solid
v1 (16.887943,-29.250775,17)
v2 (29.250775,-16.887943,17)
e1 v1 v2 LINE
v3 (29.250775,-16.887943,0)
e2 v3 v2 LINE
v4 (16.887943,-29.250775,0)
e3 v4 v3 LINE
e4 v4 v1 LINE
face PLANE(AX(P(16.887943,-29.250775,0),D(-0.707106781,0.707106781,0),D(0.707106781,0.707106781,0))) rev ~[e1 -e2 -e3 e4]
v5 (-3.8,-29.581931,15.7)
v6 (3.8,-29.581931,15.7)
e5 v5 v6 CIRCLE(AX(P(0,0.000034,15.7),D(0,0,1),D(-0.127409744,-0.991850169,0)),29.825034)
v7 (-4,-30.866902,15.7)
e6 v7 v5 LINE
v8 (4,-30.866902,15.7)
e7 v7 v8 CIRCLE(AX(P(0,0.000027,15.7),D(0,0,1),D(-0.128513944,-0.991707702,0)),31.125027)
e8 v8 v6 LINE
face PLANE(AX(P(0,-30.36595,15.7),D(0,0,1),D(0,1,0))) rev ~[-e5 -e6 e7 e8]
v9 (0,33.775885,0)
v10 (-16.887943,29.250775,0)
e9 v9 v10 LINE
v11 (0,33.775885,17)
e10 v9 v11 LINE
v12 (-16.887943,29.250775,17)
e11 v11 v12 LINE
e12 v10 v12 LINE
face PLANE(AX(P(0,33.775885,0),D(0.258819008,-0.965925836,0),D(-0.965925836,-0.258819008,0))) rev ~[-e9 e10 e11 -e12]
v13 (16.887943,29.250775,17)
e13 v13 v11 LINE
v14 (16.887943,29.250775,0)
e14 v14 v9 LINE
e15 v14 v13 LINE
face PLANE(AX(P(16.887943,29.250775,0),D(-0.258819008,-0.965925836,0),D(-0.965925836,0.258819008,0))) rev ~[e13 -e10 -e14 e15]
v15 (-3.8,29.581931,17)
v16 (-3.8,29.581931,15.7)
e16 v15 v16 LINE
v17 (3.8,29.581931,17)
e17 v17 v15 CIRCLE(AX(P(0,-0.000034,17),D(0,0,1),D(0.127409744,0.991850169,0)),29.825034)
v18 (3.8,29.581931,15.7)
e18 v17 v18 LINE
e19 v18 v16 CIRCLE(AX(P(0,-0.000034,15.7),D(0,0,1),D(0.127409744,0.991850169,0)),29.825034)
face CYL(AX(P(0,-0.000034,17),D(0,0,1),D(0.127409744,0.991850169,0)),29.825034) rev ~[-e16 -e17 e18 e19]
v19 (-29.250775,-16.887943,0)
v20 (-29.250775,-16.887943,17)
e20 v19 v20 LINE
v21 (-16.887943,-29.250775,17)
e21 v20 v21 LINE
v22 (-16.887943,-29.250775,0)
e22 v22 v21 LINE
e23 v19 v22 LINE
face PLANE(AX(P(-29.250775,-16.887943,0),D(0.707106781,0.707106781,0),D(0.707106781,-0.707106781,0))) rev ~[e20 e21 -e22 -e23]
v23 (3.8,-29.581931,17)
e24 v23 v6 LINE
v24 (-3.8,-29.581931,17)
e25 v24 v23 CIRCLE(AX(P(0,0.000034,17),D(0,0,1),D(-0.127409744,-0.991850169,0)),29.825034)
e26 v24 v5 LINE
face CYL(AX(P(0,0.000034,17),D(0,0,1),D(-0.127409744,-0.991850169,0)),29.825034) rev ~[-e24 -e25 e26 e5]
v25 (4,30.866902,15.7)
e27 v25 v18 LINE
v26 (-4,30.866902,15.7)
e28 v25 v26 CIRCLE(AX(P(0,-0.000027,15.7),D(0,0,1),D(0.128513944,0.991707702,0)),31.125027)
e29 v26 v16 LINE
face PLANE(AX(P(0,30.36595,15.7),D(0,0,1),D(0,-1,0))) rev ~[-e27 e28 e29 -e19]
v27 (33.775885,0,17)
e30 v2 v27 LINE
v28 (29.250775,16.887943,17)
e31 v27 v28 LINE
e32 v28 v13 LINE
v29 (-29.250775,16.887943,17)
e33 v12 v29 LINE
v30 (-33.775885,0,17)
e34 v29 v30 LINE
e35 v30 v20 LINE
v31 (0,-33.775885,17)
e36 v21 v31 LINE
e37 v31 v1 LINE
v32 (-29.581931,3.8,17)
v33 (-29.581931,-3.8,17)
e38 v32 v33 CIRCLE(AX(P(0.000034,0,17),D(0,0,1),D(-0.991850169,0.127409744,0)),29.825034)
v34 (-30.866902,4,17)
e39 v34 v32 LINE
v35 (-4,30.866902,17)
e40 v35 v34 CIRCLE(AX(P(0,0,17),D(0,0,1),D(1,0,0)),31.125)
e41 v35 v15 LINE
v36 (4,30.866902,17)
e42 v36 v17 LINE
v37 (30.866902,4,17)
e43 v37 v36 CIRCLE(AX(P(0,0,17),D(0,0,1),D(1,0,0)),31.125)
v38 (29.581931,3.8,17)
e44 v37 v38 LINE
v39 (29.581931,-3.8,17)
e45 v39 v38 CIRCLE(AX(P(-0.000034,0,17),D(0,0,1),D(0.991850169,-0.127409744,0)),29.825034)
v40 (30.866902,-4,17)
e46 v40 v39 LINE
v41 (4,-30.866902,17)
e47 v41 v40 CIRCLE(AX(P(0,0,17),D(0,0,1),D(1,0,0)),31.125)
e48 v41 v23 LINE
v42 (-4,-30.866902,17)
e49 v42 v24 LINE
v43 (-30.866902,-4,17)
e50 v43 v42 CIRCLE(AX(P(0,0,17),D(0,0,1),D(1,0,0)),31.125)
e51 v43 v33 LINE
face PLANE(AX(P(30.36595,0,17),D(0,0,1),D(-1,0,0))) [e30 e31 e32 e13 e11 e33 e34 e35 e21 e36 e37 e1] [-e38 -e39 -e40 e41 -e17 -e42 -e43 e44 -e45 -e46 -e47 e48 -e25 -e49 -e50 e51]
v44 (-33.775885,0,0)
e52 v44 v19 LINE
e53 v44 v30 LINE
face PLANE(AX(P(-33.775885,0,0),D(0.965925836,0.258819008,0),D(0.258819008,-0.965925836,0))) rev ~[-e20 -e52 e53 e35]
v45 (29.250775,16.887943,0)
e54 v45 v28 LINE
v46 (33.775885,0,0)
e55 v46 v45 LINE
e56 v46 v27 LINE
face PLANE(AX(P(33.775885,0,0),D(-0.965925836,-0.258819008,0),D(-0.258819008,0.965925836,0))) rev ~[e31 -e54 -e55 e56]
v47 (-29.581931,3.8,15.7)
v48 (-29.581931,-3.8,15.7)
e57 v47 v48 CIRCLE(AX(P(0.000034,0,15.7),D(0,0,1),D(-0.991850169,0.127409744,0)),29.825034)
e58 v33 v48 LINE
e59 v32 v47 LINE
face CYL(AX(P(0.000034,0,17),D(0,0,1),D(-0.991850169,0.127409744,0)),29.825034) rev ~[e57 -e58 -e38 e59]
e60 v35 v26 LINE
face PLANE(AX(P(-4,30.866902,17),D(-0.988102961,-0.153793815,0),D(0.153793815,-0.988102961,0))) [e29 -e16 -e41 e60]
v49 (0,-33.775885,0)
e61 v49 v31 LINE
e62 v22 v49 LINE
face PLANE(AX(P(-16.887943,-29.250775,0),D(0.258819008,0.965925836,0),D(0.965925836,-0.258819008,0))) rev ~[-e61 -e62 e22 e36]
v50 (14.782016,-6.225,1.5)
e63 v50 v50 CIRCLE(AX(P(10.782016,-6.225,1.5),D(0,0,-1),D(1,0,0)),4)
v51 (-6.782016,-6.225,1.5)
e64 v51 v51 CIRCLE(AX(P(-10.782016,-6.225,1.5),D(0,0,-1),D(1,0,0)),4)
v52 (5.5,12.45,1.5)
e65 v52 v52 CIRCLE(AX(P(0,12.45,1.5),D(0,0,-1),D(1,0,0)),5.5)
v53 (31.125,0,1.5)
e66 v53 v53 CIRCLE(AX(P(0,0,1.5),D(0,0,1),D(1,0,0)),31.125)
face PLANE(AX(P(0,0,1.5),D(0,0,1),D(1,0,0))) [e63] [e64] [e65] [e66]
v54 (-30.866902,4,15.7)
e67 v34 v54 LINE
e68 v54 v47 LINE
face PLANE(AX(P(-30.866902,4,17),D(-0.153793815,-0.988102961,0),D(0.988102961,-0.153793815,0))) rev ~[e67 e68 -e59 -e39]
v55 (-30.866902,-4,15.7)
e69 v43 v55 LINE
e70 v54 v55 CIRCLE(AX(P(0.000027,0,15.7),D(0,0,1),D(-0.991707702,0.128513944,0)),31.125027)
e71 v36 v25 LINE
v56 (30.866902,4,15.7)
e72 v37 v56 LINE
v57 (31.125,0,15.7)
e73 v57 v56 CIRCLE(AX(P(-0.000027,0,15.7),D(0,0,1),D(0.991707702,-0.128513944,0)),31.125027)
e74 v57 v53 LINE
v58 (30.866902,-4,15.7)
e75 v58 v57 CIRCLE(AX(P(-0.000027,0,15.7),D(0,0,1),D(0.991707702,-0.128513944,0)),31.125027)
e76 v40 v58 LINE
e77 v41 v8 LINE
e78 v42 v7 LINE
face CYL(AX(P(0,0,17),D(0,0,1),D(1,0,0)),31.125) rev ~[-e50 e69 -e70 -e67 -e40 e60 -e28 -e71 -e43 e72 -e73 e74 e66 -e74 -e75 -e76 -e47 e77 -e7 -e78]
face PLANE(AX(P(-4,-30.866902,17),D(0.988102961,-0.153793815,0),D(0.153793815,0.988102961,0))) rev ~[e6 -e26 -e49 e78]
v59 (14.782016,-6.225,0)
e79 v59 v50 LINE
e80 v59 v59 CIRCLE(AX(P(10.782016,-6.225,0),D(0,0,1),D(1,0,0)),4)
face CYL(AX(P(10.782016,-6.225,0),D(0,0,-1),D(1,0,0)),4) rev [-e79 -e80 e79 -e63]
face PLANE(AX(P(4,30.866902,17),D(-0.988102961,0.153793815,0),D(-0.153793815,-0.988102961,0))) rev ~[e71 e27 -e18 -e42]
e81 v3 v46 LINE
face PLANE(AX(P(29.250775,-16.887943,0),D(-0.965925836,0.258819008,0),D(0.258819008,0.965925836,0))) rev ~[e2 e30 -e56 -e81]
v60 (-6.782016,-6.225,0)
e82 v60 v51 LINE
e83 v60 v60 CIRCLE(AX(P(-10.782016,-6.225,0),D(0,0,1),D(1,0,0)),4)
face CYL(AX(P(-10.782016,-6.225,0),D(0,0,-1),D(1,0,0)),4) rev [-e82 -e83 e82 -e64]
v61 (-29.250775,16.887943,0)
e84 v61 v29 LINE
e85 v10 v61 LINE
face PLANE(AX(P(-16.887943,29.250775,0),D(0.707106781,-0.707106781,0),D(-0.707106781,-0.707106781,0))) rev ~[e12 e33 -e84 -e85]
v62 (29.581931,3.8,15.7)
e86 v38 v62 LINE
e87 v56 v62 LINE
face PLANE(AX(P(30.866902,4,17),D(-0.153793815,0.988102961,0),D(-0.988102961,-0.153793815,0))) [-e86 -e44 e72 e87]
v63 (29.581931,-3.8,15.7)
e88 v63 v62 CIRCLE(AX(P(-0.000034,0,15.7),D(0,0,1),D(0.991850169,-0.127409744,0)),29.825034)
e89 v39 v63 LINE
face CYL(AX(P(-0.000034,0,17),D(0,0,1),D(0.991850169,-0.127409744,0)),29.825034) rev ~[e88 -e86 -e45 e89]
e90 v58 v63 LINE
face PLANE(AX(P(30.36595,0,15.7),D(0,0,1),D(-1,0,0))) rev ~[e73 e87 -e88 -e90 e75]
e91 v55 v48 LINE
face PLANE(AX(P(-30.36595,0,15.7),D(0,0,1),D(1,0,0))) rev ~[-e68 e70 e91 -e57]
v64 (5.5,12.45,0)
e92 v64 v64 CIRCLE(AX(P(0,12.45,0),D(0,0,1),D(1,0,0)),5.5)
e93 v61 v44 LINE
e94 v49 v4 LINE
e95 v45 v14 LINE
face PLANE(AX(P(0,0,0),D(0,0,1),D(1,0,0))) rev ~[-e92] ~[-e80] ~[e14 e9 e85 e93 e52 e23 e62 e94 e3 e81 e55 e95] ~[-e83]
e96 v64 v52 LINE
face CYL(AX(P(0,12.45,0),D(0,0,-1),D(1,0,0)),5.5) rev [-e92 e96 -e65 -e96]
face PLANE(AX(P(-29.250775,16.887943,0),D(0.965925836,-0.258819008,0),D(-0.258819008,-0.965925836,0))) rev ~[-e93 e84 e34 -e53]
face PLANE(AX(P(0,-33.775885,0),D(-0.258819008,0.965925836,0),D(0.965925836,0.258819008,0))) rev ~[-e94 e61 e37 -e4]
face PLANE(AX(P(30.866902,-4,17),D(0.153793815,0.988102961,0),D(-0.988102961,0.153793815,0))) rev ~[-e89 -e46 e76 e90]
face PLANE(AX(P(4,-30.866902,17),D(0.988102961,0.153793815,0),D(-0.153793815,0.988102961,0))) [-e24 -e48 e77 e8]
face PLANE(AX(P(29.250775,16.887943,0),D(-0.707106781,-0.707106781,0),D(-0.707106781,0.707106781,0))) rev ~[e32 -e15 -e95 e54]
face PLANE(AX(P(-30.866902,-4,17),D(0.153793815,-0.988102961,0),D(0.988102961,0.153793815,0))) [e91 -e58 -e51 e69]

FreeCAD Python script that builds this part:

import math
import FreeCAD as App
import Part
import Sketcher

V = App.Vector
Q = App.Units.Quantity


def add_polygon(sketch, points):
    """Adds a closed chain of lines whose ends are joined by coincident constraints."""
    first, n = sketch.GeometryCount, len(points)
    for a, b in zip(points, points[1:] + points[:1]):
        sketch.addGeometry(Part.LineSegment(App.Vector(*a, 0), App.Vector(*b, 0)), False)
    for i in range(n):
        sketch.addConstraint(Sketcher.Constraint("Coincident", first + i, 2, first + (i + 1) % n, 1))

doc = App.newDocument("Part")
body = doc.addObject("PartDesign::Body", "Body")

# Sketch on XY plane
sketch1 = doc.addObject("Sketcher::SketchObject", "Sketch")
body.addObject(sketch1)
sketch1.AttachmentSupport = (doc.XY_Plane, [""])
sketch1.MapMode = "FlatFace"
add_polygon(sketch1, [(-29.3, 16.9), (-33.8, 0), (-29.3, -16.9), (-16.9, -29.3), (0, -33.8), (16.9, -29.3), (29.3, -16.9), (33.8, 0), (29.3, 16.9), (16.9, 29.3), (0, 33.8), (-16.9, 29.3)])  # lines 0-11
sketch1.addGeometry(Part.Circle(V(-10.8, -6.2, 0), V(0, 0, 1), 4), False)  # 12
sketch1.addGeometry(Part.Circle(V(10.8, -6.2, 0), V(0, 0, 1), 4), False)  # 13
sketch1.addGeometry(Part.Circle(V(0, 12.4, 0), V(0, 0, 1), 5.5), False)  # 14
sketch1.addConstraint([
    Sketcher.Constraint("Equal", 12, 13),
    Sketcher.Constraint("Symmetric", 0, 2, 6, 2, -1, 1),
    Sketcher.Constraint("Symmetric", 1, 2, 7, 2, -1, 1),
    Sketcher.Constraint("Symmetric", 2, 2, 8, 2, -1, 1),
    Sketcher.Constraint("Symmetric", 3, 2, 9, 2, -1, 1),
    Sketcher.Constraint("Symmetric", 4, 2, 10, 2, -1, 1),
    Sketcher.Constraint("Symmetric", 5, 2, 11, 2, -1, 1),
    Sketcher.Constraint("Symmetric", 12, 3, 13, 3, -2),
    Sketcher.Constraint("Symmetric", 2, 2, 4, 2, -2),
    Sketcher.Constraint("Symmetric", 1, 2, 5, 2, -2),
    Sketcher.Constraint("PointOnObject", 14, 3, -2),
    Sketcher.Constraint("PointOnObject", 0, 2, -1),
    Sketcher.Constraint("PointOnObject", 3, 2, -2),
    Sketcher.Constraint("Perpendicular", 0, 3),
    Sketcher.Constraint("Perpendicular", 2, 5),
    Sketcher.Constraint("Equal", 1, 2),
    Sketcher.Constraint("Equal", 2, 3),
    Sketcher.Constraint("Diameter", 12, 8.0),
    Sketcher.Constraint("Diameter", 14, 11.0),
    Sketcher.Constraint("Angle", 0, Q("-104.999998 deg")),
    Sketcher.Constraint("DistanceY", -1, 1, 14, 3, 12.45),
    Sketcher.Constraint("DistanceY", 12, 3, -1, 1, 6.225),
    Sketcher.Constraint("DistanceX", 0, 2, 13, 3, 44.557901),
    Sketcher.Constraint("DistanceX", 0, 2, 12, 3, 22.993869),
])
pad1 = doc.addObject("PartDesign::Pad", "Pad")
body.addObject(pad1)
pad1.Profile = sketch1
pad1.Length = 17

# Sketch on XY plane
sketch2 = doc.addObject("Sketcher::SketchObject", "Sketch001")
body.addObject(sketch2)
sketch2.AttachmentSupport = (doc.XY_Plane, [""])
sketch2.MapMode = "FlatFace"
sketch2.AttachmentOffset = App.Placement(V(0, 0, 17), App.Rotation())
sketch2.addGeometry(Part.Circle(V(0, 0, 0), V(0, 0, 1), 31), False)
sketch2.addConstraint([
    Sketcher.Constraint("Coincident", 0, 3, -1, 1),
    Sketcher.Constraint("Diameter", 0, 62.25),
])
pocket1 = doc.addObject("PartDesign::Pocket", "Pocket")
body.addObject(pocket1)
pocket1.Profile = sketch2
pocket1.Length = 15.5

# Sketch on XY plane
sketch3 = doc.addObject("Sketcher::SketchObject", "Sketch002")
body.addObject(sketch3)
sketch3.AttachmentSupport = (doc.XY_Plane, [""])
sketch3.MapMode = "FlatFace"
sketch3.AttachmentOffset = App.Placement(V(0, 0, 17), App.Rotation())
sketch3.addGeometry([
    Part.ArcOfCircle(Part.Circle(V(0, 0, 0), V(0, 0, 1), 31.1), math.radians(172.62), math.radians(187.38)),
    Part.LineSegment(V(-30.9, -4, 0), V(-29.6, -3.8, 0)),
    Part.ArcOfCircle(Part.Circle(V(0, 0, 0), V(0, 0, 1), 29.8), math.radians(172.68), math.radians(187.32)),
    Part.LineSegment(V(-29.6, 3.8, 0), V(-30.9, 4, 0)),
], False)
sketch3.addConstraint([
    Sketcher.Constraint("Coincident", 0, 2, 1, 1),
    Sketcher.Constraint("Coincident", 1, 2, 2, 2),
    Sketcher.Constraint("Coincident", 2, 1, 3, 1),
    Sketcher.Constraint("Coincident", 3, 2, 0, 1),
    Sketcher.Constraint("Coincident", 2, 3, 0, 3),
    Sketcher.Constraint("Symmetric", 1, 2, 2, 1, -1),
    Sketcher.Constraint("Vertical", 0, 2, 3, 2),
    Sketcher.Constraint("DistanceY", 0, 2, -1, 1, 4.0),
    Sketcher.Constraint("DistanceY", 1, 2, -1, 1, 3.8),
    Sketcher.Constraint("Radius", 0, 31.125027),
    Sketcher.Constraint("Radius", 2, 29.825034),
    Sketcher.Constraint("DistanceX", 3, 2, -1, 1, 30.866902),
])
pad2 = doc.addObject("PartDesign::Pad", "Pad001")
body.addObject(pad2)
pad2.Profile = sketch3
pad2.Length = 1.3
pad2.Reversed = True
doc.recompute()

polarpattern = doc.addObject("PartDesign::PolarPattern", "PolarPattern")
body.addObject(polarpattern)
polarpattern.Originals = [pad2]
polarpattern.Axis = (doc.Z_Axis, [""])
polarpattern.Angle = 360
polarpattern.Occurrences = 4
body.Tip = polarpattern

doc.recompute()
